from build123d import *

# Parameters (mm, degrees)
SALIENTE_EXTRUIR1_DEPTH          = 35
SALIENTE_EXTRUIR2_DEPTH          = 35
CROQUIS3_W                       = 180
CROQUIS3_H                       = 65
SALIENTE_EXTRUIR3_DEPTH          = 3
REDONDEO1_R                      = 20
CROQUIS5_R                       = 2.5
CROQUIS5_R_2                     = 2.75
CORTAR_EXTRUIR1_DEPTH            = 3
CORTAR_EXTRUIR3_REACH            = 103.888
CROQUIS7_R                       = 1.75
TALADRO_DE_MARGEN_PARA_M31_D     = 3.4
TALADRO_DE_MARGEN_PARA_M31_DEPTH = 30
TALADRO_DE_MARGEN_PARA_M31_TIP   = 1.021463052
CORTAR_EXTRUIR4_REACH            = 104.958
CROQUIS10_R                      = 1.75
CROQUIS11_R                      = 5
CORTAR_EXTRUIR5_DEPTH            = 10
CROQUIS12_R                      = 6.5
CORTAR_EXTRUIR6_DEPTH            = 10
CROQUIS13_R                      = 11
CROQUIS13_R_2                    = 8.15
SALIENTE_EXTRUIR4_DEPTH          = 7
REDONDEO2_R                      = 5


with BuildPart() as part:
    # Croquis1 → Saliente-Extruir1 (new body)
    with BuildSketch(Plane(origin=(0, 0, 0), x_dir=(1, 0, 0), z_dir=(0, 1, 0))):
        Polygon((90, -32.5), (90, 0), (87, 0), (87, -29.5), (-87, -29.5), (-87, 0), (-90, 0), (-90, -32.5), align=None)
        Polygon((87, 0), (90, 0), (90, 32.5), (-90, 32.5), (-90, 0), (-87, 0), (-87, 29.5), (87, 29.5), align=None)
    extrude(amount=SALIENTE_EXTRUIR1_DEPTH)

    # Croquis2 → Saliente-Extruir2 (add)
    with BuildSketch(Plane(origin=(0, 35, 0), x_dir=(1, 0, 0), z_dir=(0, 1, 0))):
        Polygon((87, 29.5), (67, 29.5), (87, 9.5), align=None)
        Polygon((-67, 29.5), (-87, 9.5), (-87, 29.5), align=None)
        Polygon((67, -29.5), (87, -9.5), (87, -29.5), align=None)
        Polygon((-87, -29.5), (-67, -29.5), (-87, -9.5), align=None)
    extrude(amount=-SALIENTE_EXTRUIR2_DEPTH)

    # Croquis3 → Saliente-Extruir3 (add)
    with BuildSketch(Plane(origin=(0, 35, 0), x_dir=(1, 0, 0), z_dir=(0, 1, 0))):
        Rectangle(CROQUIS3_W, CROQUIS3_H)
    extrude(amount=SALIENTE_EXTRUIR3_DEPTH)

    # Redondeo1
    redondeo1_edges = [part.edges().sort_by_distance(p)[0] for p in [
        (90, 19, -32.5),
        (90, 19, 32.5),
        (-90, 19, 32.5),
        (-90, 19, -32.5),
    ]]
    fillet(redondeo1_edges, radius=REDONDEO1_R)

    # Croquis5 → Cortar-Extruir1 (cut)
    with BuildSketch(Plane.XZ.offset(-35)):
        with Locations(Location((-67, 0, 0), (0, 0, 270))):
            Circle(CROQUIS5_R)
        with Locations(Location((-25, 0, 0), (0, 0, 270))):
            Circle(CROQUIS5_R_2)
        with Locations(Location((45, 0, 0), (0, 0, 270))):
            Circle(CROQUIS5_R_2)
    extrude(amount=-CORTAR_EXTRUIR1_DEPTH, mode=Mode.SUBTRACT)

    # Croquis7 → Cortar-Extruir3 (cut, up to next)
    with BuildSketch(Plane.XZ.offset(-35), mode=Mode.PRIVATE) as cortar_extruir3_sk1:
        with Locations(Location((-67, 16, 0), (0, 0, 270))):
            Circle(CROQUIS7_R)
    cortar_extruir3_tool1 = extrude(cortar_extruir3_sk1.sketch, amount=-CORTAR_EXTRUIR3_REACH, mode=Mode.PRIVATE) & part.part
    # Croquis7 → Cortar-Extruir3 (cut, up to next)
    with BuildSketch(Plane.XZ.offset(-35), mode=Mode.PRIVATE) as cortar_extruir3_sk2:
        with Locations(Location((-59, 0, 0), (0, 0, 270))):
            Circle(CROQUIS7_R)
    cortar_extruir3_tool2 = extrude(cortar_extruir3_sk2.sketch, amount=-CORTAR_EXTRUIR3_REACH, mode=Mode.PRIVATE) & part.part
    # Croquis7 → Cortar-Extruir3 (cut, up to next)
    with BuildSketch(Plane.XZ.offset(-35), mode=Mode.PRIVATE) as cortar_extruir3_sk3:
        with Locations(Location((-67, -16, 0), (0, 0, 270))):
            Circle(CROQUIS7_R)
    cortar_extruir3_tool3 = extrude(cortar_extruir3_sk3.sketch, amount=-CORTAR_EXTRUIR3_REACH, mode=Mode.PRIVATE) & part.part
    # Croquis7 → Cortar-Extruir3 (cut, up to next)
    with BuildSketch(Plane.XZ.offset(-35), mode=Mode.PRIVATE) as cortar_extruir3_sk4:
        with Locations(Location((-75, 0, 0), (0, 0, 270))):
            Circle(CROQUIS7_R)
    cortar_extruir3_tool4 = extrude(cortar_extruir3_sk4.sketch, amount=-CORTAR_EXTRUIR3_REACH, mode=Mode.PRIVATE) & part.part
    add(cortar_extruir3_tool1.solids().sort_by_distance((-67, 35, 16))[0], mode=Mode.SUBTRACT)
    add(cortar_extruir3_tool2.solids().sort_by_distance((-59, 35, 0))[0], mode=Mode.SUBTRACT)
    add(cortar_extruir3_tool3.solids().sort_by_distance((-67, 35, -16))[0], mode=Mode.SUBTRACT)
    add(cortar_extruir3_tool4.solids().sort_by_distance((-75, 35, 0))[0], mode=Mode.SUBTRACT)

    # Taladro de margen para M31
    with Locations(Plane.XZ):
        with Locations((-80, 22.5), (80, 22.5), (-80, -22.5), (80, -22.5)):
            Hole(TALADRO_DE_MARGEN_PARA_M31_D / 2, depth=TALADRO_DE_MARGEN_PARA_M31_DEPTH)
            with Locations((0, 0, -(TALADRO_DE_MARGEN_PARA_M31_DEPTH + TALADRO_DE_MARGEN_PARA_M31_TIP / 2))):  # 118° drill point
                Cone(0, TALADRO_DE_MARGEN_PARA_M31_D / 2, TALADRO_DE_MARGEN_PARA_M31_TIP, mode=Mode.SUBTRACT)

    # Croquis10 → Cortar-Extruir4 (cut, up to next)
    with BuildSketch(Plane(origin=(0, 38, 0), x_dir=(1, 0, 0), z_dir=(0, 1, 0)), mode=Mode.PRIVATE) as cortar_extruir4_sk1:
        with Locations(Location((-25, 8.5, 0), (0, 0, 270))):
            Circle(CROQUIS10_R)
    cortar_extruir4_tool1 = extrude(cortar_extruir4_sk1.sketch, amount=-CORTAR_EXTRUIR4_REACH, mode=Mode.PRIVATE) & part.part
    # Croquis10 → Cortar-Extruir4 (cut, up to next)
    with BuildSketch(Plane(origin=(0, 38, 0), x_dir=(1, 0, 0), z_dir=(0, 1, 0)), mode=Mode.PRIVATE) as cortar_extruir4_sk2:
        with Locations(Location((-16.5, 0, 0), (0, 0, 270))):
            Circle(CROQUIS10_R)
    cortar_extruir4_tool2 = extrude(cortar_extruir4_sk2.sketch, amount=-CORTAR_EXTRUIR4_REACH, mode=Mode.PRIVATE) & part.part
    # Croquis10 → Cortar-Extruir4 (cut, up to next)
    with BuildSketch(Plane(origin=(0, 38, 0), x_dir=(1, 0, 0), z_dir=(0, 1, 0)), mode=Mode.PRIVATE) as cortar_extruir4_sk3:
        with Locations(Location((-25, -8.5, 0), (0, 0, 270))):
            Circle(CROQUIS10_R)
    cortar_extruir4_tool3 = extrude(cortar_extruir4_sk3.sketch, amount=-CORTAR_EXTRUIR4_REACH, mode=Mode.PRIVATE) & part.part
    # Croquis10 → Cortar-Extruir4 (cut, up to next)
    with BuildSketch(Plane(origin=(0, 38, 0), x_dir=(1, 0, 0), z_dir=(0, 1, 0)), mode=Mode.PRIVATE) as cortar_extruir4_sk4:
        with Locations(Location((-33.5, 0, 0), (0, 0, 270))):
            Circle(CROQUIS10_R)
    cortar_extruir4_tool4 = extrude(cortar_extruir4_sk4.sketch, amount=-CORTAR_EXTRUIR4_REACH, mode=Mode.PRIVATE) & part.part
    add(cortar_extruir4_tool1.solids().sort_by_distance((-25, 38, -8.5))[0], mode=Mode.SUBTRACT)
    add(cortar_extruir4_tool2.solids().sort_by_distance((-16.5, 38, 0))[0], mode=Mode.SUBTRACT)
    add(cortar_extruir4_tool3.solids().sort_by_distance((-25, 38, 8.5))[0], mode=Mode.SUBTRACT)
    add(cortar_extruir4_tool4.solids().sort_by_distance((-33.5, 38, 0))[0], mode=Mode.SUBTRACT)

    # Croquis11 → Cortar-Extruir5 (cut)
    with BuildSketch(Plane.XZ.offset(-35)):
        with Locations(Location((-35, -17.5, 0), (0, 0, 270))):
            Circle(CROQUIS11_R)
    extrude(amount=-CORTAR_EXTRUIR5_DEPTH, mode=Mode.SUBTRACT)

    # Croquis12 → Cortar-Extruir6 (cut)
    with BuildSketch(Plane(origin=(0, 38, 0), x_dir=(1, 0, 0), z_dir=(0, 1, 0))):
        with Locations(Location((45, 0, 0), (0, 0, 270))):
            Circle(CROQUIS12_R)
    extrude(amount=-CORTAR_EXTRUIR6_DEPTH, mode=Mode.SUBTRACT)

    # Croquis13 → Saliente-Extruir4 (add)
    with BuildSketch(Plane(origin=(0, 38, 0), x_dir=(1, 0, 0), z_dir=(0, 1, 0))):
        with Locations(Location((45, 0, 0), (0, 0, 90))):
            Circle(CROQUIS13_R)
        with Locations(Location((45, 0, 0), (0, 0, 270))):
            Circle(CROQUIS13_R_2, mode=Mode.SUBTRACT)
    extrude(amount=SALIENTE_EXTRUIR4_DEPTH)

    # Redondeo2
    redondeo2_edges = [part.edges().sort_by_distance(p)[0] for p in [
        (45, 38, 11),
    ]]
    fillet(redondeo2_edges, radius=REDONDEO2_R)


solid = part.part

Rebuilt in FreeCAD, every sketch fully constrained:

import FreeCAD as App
import Part
import Sketcher


def edges_at(feature, points):
    """Names of the edges that pass closest to the given points."""
    edges = feature.Shape.Edges
    near = lambda p: min(range(len(edges)), key=lambda i: edges[i].distToShape(Part.Vertex(*p))[0])
    return sorted({f"Edge{near(p) + 1}" for p in points})

doc = App.newDocument("Part")
body = doc.addObject("PartDesign::Body", "Body")

sketch1 = body.newObject("Sketcher::SketchObject", "Sketch")
sketch1.AttachmentSupport = (doc.getObject("XZ_Plane"), [""])
sketch1.MapMode = "FlatFace"
sketch1.addGeometry([
    Part.LineSegment(App.Vector(90, 32.5, 0), App.Vector(90, -32.5, 0)),
    Part.LineSegment(App.Vector(90, -32.5, 0), App.Vector(-90, -32.5, 0)),
    Part.LineSegment(App.Vector(-90, -32.5, 0), App.Vector(-90, 32.5, 0)),
    Part.LineSegment(App.Vector(-90, 32.5, 0), App.Vector(90, 32.5, 0)),
    Part.LineSegment(App.Vector(87, 29.5, 0), App.Vector(-87, 29.5, 0)),
    Part.LineSegment(App.Vector(-87, 29.5, 0), App.Vector(-87, -29.5, 0)),
    Part.LineSegment(App.Vector(-87, -29.5, 0), App.Vector(87, -29.5, 0)),
    Part.LineSegment(App.Vector(87, -29.5, 0), App.Vector(87, 29.5, 0)),
], False)
sketch1.addConstraint([
    Sketcher.Constraint("Coincident", 0, 2, 1, 1),
    Sketcher.Constraint("Coincident", 1, 2, 2, 1),
    Sketcher.Constraint("Coincident", 2, 2, 3, 1),
    Sketcher.Constraint("Coincident", 3, 2, 0, 1),
    Sketcher.Constraint("Coincident", 4, 2, 5, 1),
    Sketcher.Constraint("Coincident", 5, 2, 6, 1),
    Sketcher.Constraint("Coincident", 6, 2, 7, 1),
    Sketcher.Constraint("Coincident", 7, 2, 4, 1),
    Sketcher.Constraint("Vertical", 0),
    Sketcher.Constraint("Horizontal", 1),
    Sketcher.Constraint("Vertical", 2),
    Sketcher.Constraint("Horizontal", 3),
    Sketcher.Constraint("Horizontal", 4),
    Sketcher.Constraint("Vertical", 5),
    Sketcher.Constraint("Horizontal", 6),
    Sketcher.Constraint("Vertical", 7),
    Sketcher.Constraint("Symmetric", 0, 2, 2, 2, -1, 1),
    Sketcher.Constraint("Symmetric", 4, 2, 6, 2, -1, 1),
    Sketcher.Constraint("DistanceX", 1, 2, 1, 1, 180.0),
    Sketcher.Constraint("DistanceX", 4, 2, 4, 1, 174.0),
    Sketcher.Constraint("DistanceY", 0, 2, 0, 1, 65.0),
    Sketcher.Constraint("DistanceY", 5, 2, 5, 1, 59.0),
])
pad1 = body.newObject("PartDesign::Pad", "Pad")
pad1.Profile = sketch1
pad1.Length = 35
pad1.Reversed = True

sketch2 = body.newObject("Sketcher::SketchObject", "Sketch001")
sketch2.AttachmentSupport = (doc.getObject("XZ_Plane"), [""])
sketch2.MapMode = "FlatFace"
sketch2.AttachmentOffset = App.Placement(App.Vector(0, 0, -35), App.Rotation())
sketch2.addGeometry([
    Part.LineSegment(App.Vector(87, -29.5, 0), App.Vector(67, -29.5, 0)),
    Part.LineSegment(App.Vector(67, -29.5, 0), App.Vector(87, -9.5, 0)),
    Part.LineSegment(App.Vector(87, -9.5, 0), App.Vector(87, -29.5, 0)),
    Part.LineSegment(App.Vector(-87, -9.5, 0), App.Vector(-67, -29.5, 0)),
    Part.LineSegment(App.Vector(-67, -29.5, 0), App.Vector(-87, -29.5, 0)),
    Part.LineSegment(App.Vector(-87, -29.5, 0), App.Vector(-87, -9.5, 0)),
    Part.LineSegment(App.Vector(87, 9.5, 0), App.Vector(67, 29.5, 0)),
    Part.LineSegment(App.Vector(67, 29.5, 0), App.Vector(87, 29.5, 0)),
    Part.LineSegment(App.Vector(87, 29.5, 0), App.Vector(87, 9.5, 0)),
    Part.LineSegment(App.Vector(-87, 29.5, 0), App.Vector(-67, 29.5, 0)),
    Part.LineSegment(App.Vector(-67, 29.5, 0), App.Vector(-87, 9.5, 0)),
    Part.LineSegment(App.Vector(-87, 9.5, 0), App.Vector(-87, 29.5, 0)),
], False)
sketch2.addConstraint([
    Sketcher.Constraint("Coincident", 0, 2, 1, 1),
    Sketcher.Constraint("Coincident", 1, 2, 2, 1),
    Sketcher.Constraint("Coincident", 2, 2, 0, 1),
    Sketcher.Constraint("Coincident", 3, 2, 4, 1),
    Sketcher.Constraint("Coincident", 4, 2, 5, 1),
    Sketcher.Constraint("Coincident", 5, 2, 3, 1),
    Sketcher.Constraint("Coincident", 6, 2, 7, 1),
    Sketcher.Constraint("Coincident", 7, 2, 8, 1),
    Sketcher.Constraint("Coincident", 8, 2, 6, 1),
    Sketcher.Constraint("Coincident", 9, 2, 10, 1),
    Sketcher.Constraint("Coincident", 10, 2, 11, 1),
    Sketcher.Constraint("Coincident", 11, 2, 9, 1),
    Sketcher.Constraint("Horizontal", 0),
    Sketcher.Constraint("Vertical", 2),
    Sketcher.Constraint("Horizontal", 4),
    Sketcher.Constraint("Vertical", 5),
    Sketcher.Constraint("Horizontal", 7),
    Sketcher.Constraint("Vertical", 8),
    Sketcher.Constraint("Horizontal", 9),
    Sketcher.Constraint("Vertical", 11),
    Sketcher.Constraint("Symmetric", 3, 2, 6, 2, -1, 1),
    Sketcher.Constraint("Symmetric", 5, 2, 8, 2, -1, 1),
    Sketcher.Constraint("Symmetric", 0, 2, 9, 2, -1, 1),
    Sketcher.Constraint("Symmetric", 1, 2, 10, 2, -1, 1),
    Sketcher.Constraint("Symmetric", 0, 2, 3, 2, -2),
    Sketcher.Constraint("Symmetric", 1, 2, 5, 2, -2),
    Sketcher.Constraint("Perpendicular", 1, 3),
    Sketcher.Constraint("DistanceX", 0, 2, 0, 1, 20.0),
    Sketcher.Constraint("DistanceX", -1, 1, 0, 2, 67.0),
    Sketcher.Constraint("DistanceY", 1, 2, 6, 2, 39.0),
])
pad2 = body.newObject("PartDesign::Pad", "Pad001")
pad2.Profile = sketch2
pad2.Length = 35

sketch3 = body.newObject("Sketcher::SketchObject", "Sketch002")
sketch3.AttachmentSupport = (doc.getObject("XZ_Plane"), [""])
sketch3.MapMode = "FlatFace"
sketch3.AttachmentOffset = App.Placement(App.Vector(0, 0, -35), App.Rotation())
sketch3.addGeometry([
    Part.LineSegment(App.Vector(-90, -32.5, 0), App.Vector(-90, 32.5, 0)),
    Part.LineSegment(App.Vector(-90, 32.5, 0), App.Vector(90, 32.5, 0)),
    Part.LineSegment(App.Vector(90, 32.5, 0), App.Vector(90, -32.5, 0)),
    Part.LineSegment(App.Vector(90, -32.5, 0), App.Vector(-90, -32.5, 0)),
], False)
sketch3.addConstraint([
    Sketcher.Constraint("Coincident", 0, 2, 1, 1),
    Sketcher.Constraint("Coincident", 1, 2, 2, 1),
    Sketcher.Constraint("Coincident", 2, 2, 3, 1),
    Sketcher.Constraint("Coincident", 3, 2, 0, 1),
    Sketcher.Constraint("Vertical", 0),
    Sketcher.Constraint("Horizontal", 1),
    Sketcher.Constraint("Vertical", 2),
    Sketcher.Constraint("Horizontal", 3),
    Sketcher.Constraint("Symmetric", 0, 2, 2, 2, -1, 1),
    Sketcher.Constraint("DistanceX", 1, 1, 1, 2, 180.0),
    Sketcher.Constraint("DistanceY", 0, 1, 0, 2, 65.0),
])
pad3 = body.newObject("PartDesign::Pad", "Pad002")
pad3.Profile = sketch3
pad3.Length = 3
pad3.Reversed = True
doc.recompute()

fillet = body.newObject("PartDesign::Fillet", "Fillet")
fillet.Base = (pad3, edges_at(pad3, [
    (90, 19, -32.5),
    (90, 19, 32.5),
    (-90, 19, 32.5),
    (-90, 19, -32.5),
]))
fillet.Radius = 20

sketch4 = body.newObject("Sketcher::SketchObject", "Sketch003")
sketch4.AttachmentSupport = (doc.getObject("XZ_Plane"), [""])
sketch4.MapMode = "FlatFace"
sketch4.AttachmentOffset = App.Placement(App.Vector(0, 0, -35), App.Rotation())
sketch4.addGeometry([
    Part.Circle(App.Vector(-67, 0, 0), App.Vector(0, 0, 1), 2.5),
    Part.Circle(App.Vector(-25, 0, 0), App.Vector(0, 0, 1), 2.75),
    Part.Circle(App.Vector(45, 0, 0), App.Vector(0, 0, 1), 2.75),
], False)
sketch4.addConstraint([
    Sketcher.Constraint("Equal", 1, 2),
    Sketcher.Constraint("PointOnObject", 0, 3, -1),
    Sketcher.Constraint("PointOnObject", 1, 3, -1),
    Sketcher.Constraint("PointOnObject", 2, 3, -1),
    Sketcher.Constraint("Diameter", 0, 5.0),
    Sketcher.Constraint("Diameter", 1, 5.5),
    Sketcher.Constraint("DistanceX", 0, 3, -1, 1, 67.0),
    Sketcher.Constraint("DistanceX", 1, 3, -1, 1, 25.0),
    Sketcher.Constraint("DistanceX", -1, 1, 2, 3, 45.0),
])
pocket1 = body.newObject("PartDesign::Pocket", "Pocket")
pocket1.Profile = sketch4
pocket1.Length = 3

sketch5 = body.newObject("Sketcher::SketchObject", "Sketch004")
sketch5.AttachmentSupport = (doc.getObject("XZ_Plane"), [""])
sketch5.MapMode = "FlatFace"
sketch5.AttachmentOffset = App.Placement(App.Vector(0, 0, -35), App.Rotation())
sketch5.addGeometry(Part.Circle(App.Vector(-67, 16, 0), App.Vector(0, 0, 1), 1.75), False)
sketch5.addConstraint([
    Sketcher.Constraint("Diameter", 0, 3.5),
    Sketcher.Constraint("DistanceX", 0, 3, -1, 1, 67.0),
    Sketcher.Constraint("DistanceY", -1, 1, 0, 3, 16.0),
])
pocket2 = body.newObject("PartDesign::Pocket", "Pocket001")
pocket2.Profile = sketch5
pocket2.Type = "UpToFirst"

sketch6 = body.newObject("Sketcher::SketchObject", "Sketch005")
sketch6.AttachmentSupport = (doc.getObject("XZ_Plane"), [""])
sketch6.MapMode = "FlatFace"
sketch6.AttachmentOffset = App.Placement(App.Vector(0, 0, -35), App.Rotation())
sketch6.addGeometry(Part.Circle(App.Vector(-59, 0, 0), App.Vector(0, 0, 1), 1.75), False)
sketch6.addConstraint([
    Sketcher.Constraint("PointOnObject", 0, 3, -1),
    Sketcher.Constraint("Diameter", 0, 3.5),
    Sketcher.Constraint("DistanceX", 0, 3, -1, 1, 59.0),
])
pocket3 = body.newObject("PartDesign::Pocket", "Pocket002")
pocket3.Profile = sketch6
pocket3.Type = "UpToFirst"

sketch7 = body.newObject("Sketcher::SketchObject", "Sketch006")
sketch7.AttachmentSupport = (doc.getObject("XZ_Plane"), [""])
sketch7.MapMode = "FlatFace"
sketch7.AttachmentOffset = App.Placement(App.Vector(0, 0, -35), App.Rotation())
sketch7.addGeometry(Part.Circle(App.Vector(-67, -16, 0), App.Vector(0, 0, 1), 1.75), False)
sketch7.addConstraint([
    Sketcher.Constraint("Diameter", 0, 3.5),
    Sketcher.Constraint("DistanceX", 0, 3, -1, 1, 67.0),
    Sketcher.Constraint("DistanceY", 0, 3, -1, 1, 16.0),
])
pocket4 = body.newObject("PartDesign::Pocket", "Pocket003")
pocket4.Profile = sketch7
pocket4.Type = "UpToFirst"

sketch8 = body.newObject("Sketcher::SketchObject", "Sketch007")
sketch8.AttachmentSupport = (doc.getObject("XZ_Plane"), [""])
sketch8.MapMode = "FlatFace"
sketch8.AttachmentOffset = App.Placement(App.Vector(0, 0, -35), App.Rotation())
sketch8.addGeometry(Part.Circle(App.Vector(-75, 0, 0), App.Vector(0, 0, 1), 1.75), False)
sketch8.addConstraint([
    Sketcher.Constraint("PointOnObject", 0, 3, -1),
    Sketcher.Constraint("Diameter", 0, 3.5),
    Sketcher.Constraint("DistanceX", 0, 3, -1, 1, 75.0),
])
pocket5 = body.newObject("PartDesign::Pocket", "Pocket004")
pocket5.Profile = sketch8
pocket5.Type = "UpToFirst"

sketch9 = body.newObject("Sketcher::SketchObject", "Sketch008")
sketch9.AttachmentSupport = (doc.getObject("XZ_Plane"), [""])
sketch9.MapMode = "FlatFace"
sketch9.addGeometry([
    Part.Circle(App.Vector(-80, 22.5, 0), App.Vector(0, 0, 1), 1.7),
    Part.Circle(App.Vector(80, 22.5, 0), App.Vector(0, 0, 1), 1.7),
    Part.Circle(App.Vector(-80, -22.5, 0), App.Vector(0, 0, 1), 1.7),
    Part.Circle(App.Vector(80, -22.5, 0), App.Vector(0, 0, 1), 1.7),
], False)
sketch9.addConstraint([
    Sketcher.Constraint("Equal", 0, 1),
    Sketcher.Constraint("Equal", 1, 2),
    Sketcher.Constraint("Equal", 2, 3),
    Sketcher.Constraint("Symmetric", 1, 3, 2, 3, -1, 1),
    Sketcher.Constraint("Symmetric", 0, 3, 3, 3, -1, 1),
    Sketcher.Constraint("Symmetric", 0, 3, 1, 3, -2),
    Sketcher.Constraint("Diameter", 0, 3.4),
    Sketcher.Constraint("DistanceX", 0, 3, -1, 1, 80.0),
    Sketcher.Constraint("DistanceY", 2, 3, 0, 3, 45.0),
])
doc.recompute()
hole = body.newObject("PartDesign::Hole", "Hole")
hole.Profile = sketch9
hole.ThreadType = "None"
hole.Diameter = 3.4
hole.DepthType = "Dimension"
hole.Depth = 30
hole.DrillPoint = "Angled"
hole.DrillPointAngle = 118

sketch10 = body.newObject("Sketcher::SketchObject", "Sketch009")
sketch10.AttachmentSupport = (doc.getObject("XZ_Plane"), [""])
sketch10.MapMode = "FlatFace"
sketch10.AttachmentOffset = App.Placement(App.Vector(0, 0, -38), App.Rotation())
sketch10.addGeometry(Part.Circle(App.Vector(-25, -8.5, 0), App.Vector(0, 0, 1), 1.75), False)
sketch10.addConstraint([
    Sketcher.Constraint("Diameter", 0, 3.5),
    Sketcher.Constraint("DistanceX", 0, 3, -1, 1, 25.0),
    Sketcher.Constraint("DistanceY", 0, 3, -1, 1, 8.5),
])
pocket6 = body.newObject("PartDesign::Pocket", "Pocket005")
pocket6.Profile = sketch10
pocket6.Type = "UpToFirst"
pocket6.Reversed = True

sketch11 = body.newObject("Sketcher::SketchObject", "Sketch010")
sketch11.AttachmentSupport = (doc.getObject("XZ_Plane"), [""])
sketch11.MapMode = "FlatFace"
sketch11.AttachmentOffset = App.Placement(App.Vector(0, 0, -38), App.Rotation())
sketch11.addGeometry(Part.Circle(App.Vector(-16.5, 0, 0), App.Vector(0, 0, 1), 1.75), False)
sketch11.addConstraint([
    Sketcher.Constraint("PointOnObject", 0, 3, -1),
    Sketcher.Constraint("Diameter", 0, 3.5),
    Sketcher.Constraint("DistanceX", 0, 3, -1, 1, 16.5),
])
pocket7 = body.newObject("PartDesign::Pocket", "Pocket006")
pocket7.Profile = sketch11
pocket7.Type = "UpToFirst"
pocket7.Reversed = True

sketch12 = body.newObject("Sketcher::SketchObject", "Sketch011")
sketch12.AttachmentSupport = (doc.getObject("XZ_Plane"), [""])
sketch12.MapMode = "FlatFace"
sketch12.AttachmentOffset = App.Placement(App.Vector(0, 0, -38), App.Rotation())
sketch12.addGeometry(Part.Circle(App.Vector(-25, 8.5, 0), App.Vector(0, 0, 1), 1.75), False)
sketch12.addConstraint([
    Sketcher.Constraint("Diameter", 0, 3.5),
    Sketcher.Constraint("DistanceX", 0, 3, -1, 1, 25.0),
    Sketcher.Constraint("DistanceY", -1, 1, 0, 3, 8.5),
])
pocket8 = body.newObject("PartDesign::Pocket", "Pocket007")
pocket8.Profile = sketch12
pocket8.Type = "UpToFirst"
pocket8.Reversed = True

sketch13 = body.newObject("Sketcher::SketchObject", "Sketch012")
sketch13.AttachmentSupport = (doc.getObject("XZ_Plane"), [""])
sketch13.MapMode = "FlatFace"
sketch13.AttachmentOffset = App.Placement(App.Vector(0, 0, -38), App.Rotation())
sketch13.addGeometry(Part.Circle(App.Vector(-33.5, 0, 0), App.Vector(0, 0, 1), 1.75), False)
sketch13.addConstraint([
    Sketcher.Constraint("PointOnObject", 0, 3, -1),
    Sketcher.Constraint("Diameter", 0, 3.5),
    Sketcher.Constraint("DistanceX", 0, 3, -1, 1, 33.5),
])
pocket9 = body.newObject("PartDesign::Pocket", "Pocket008")
pocket9.Profile = sketch13
pocket9.Type = "UpToFirst"
pocket9.Reversed = True

sketch14 = body.newObject("Sketcher::SketchObject", "Sketch013")
sketch14.AttachmentSupport = (doc.getObject("XZ_Plane"), [""])
sketch14.MapMode = "FlatFace"
sketch14.AttachmentOffset = App.Placement(App.Vector(0, 0, -35), App.Rotation())
sketch14.addGeometry(Part.Circle(App.Vector(-35, -17.5, 0), App.Vector(0, 0, 1), 5), False)
sketch14.addConstraint([
    Sketcher.Constraint("Diameter", 0, 10.0),
    Sketcher.Constraint("DistanceX", 0, 3, -1, 1, 35.0),
    Sketcher.Constraint("DistanceY", 0, 3, -1, 1, 17.5),
])
pocket10 = body.newObject("PartDesign::Pocket", "Pocket009")
pocket10.Profile = sketch14
pocket10.Length = 10

sketch15 = body.newObject("Sketcher::SketchObject", "Sketch014")
sketch15.AttachmentSupport = (doc.getObject("XZ_Plane"), [""])
sketch15.MapMode = "FlatFace"
sketch15.AttachmentOffset = App.Placement(App.Vector(0, 0, -38), App.Rotation())
sketch15.addGeometry(Part.Circle(App.Vector(45, 0, 0), App.Vector(0, 0, 1), 6.5), False)
sketch15.addConstraint([
    Sketcher.Constraint("PointOnObject", 0, 3, -1),
    Sketcher.Constraint("Diameter", 0, 13.0),
    Sketcher.Constraint("DistanceX", -1, 1, 0, 3, 45.0),
])
pocket11 = body.newObject("PartDesign::Pocket", "Pocket010")
pocket11.Profile = sketch15
pocket11.Length = 10
pocket11.Reversed = True

sketch16 = body.newObject("Sketcher::SketchObject", "Sketch015")
sketch16.AttachmentSupport = (doc.getObject("XZ_Plane"), [""])
sketch16.MapMode = "FlatFace"
sketch16.AttachmentOffset = App.Placement(App.Vector(0, 0, -38), App.Rotation())
sketch16.addGeometry([
    Part.Circle(App.Vector(45, 0, 0), App.Vector(0, 0, 1), 11),
    Part.Circle(App.Vector(45, 0, 0), App.Vector(0, 0, 1), 8.15),
], False)
sketch16.addConstraint([
    Sketcher.Constraint("Coincident", 1, 3, 0, 3),
    Sketcher.Constraint("PointOnObject", 0, 3, -1),
    Sketcher.Constraint("Diameter", 0, 22.0),
    Sketcher.Constraint("Diameter", 1, 16.3),
    Sketcher.Constraint("DistanceX", -1, 1, 0, 3, 45.0),
])
pad4 = body.newObject("PartDesign::Pad", "Pad003")
pad4.Profile = sketch16
pad4.Length = 7
pad4.Reversed = True
doc.recompute()

fillet2 = body.newObject("PartDesign::Fillet", "Fillet001")
fillet2.Base = (pad4, edges_at(pad4, [(45, 38, 11)]))
fillet2.Radius = 5

doc.recompute()
